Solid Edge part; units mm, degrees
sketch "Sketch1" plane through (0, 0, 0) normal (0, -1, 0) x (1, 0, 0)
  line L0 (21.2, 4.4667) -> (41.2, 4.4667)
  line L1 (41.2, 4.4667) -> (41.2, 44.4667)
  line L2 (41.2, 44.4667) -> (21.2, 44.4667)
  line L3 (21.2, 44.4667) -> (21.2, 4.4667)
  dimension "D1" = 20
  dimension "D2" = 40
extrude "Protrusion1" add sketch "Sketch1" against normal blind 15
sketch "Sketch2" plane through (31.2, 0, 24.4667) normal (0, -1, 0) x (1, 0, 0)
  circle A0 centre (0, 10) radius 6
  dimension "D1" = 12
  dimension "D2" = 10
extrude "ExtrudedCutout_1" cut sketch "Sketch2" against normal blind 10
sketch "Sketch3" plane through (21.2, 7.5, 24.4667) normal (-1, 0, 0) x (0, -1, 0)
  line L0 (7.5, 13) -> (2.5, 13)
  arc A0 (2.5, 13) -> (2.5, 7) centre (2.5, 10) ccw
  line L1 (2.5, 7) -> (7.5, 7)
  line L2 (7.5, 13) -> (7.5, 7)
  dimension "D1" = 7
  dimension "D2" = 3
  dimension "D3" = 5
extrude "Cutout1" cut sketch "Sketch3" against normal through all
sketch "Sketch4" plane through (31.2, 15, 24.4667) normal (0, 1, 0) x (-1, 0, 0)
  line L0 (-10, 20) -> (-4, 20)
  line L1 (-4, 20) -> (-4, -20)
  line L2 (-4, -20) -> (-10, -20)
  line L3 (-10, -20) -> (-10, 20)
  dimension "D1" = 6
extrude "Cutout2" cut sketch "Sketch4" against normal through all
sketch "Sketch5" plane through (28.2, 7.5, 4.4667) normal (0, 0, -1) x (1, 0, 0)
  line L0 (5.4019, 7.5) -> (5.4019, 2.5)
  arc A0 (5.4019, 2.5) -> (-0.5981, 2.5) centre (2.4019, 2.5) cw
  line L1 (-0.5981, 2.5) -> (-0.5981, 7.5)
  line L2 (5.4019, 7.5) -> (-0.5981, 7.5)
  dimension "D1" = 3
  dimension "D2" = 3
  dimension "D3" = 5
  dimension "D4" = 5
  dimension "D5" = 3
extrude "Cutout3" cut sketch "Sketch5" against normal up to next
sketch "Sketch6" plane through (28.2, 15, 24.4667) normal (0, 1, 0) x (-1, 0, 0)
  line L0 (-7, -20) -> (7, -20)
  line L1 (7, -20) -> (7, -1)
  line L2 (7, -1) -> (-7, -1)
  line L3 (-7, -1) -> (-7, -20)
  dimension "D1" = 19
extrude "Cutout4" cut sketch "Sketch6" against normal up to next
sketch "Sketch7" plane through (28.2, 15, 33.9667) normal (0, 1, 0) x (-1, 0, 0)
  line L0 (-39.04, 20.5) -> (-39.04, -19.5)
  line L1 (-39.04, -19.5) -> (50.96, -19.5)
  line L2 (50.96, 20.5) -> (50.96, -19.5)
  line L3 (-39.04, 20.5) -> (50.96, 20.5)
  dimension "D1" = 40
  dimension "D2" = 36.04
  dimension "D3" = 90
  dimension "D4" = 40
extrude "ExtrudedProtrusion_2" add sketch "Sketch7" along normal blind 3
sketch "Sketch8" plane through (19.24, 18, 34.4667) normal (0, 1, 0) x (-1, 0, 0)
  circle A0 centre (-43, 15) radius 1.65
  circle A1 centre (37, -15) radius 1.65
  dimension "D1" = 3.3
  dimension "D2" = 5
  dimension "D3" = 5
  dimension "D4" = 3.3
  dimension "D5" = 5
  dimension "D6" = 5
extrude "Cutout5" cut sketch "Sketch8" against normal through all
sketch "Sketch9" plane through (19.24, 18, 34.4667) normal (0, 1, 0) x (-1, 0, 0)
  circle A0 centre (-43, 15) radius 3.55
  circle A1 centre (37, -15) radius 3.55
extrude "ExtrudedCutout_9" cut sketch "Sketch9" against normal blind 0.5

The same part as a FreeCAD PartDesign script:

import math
import FreeCAD as App
import Part
import Sketcher
Q = App.Units.Quantity


def add_polygon(sketch, points):
    """Adds a closed chain of lines whose ends are joined by coincident constraints."""
    first, n = sketch.GeometryCount, len(points)
    for a, b in zip(points, points[1:] + points[:1]):
        sketch.addGeometry(Part.LineSegment(App.Vector(*a, 0), App.Vector(*b, 0)), False)
    for i in range(n):
        sketch.addConstraint(Sketcher.Constraint("Coincident", first + i, 2, first + (i + 1) % n, 1))

doc = App.newDocument("Part")
body = doc.addObject("PartDesign::Body", "Body")

# Sketch on XZ plane
sketch1 = doc.addObject("Sketcher::SketchObject", "Sketch")
body.addObject(sketch1)
sketch1.AttachmentSupport = (doc.XZ_Plane, [""])
sketch1.MapMode = "FlatFace"
add_polygon(sketch1, [(21, 44), (21, 4), (41, 4), (41, 44)])  # lines 0-3
sketch1.addConstraint([
    Sketcher.Constraint("Vertical", 0),
    Sketcher.Constraint("Horizontal", 1),
    Sketcher.Constraint("Vertical", 2),
    Sketcher.Constraint("Horizontal", 3),
    Sketcher.Constraint("DistanceX", -1, 1, 0, 2, Q("21.2 mm")),
    Sketcher.Constraint("DistanceX", -1, 1, 1, 2, Q("41.2 mm")),
    Sketcher.Constraint("DistanceY", 0, 2, 0, 1, Q("40 mm")),
    Sketcher.Constraint("DistanceY", -1, 1, 0, 2, Q("4.4667 mm")),
])
pad1 = doc.addObject("PartDesign::Pad", "Pad")
body.addObject(pad1)
pad1.Profile = sketch1
pad1.Length = 15
pad1.Reversed = True

# Sketch on XZ plane
sketch2 = doc.addObject("Sketcher::SketchObject", "Sketch001")
body.addObject(sketch2)
sketch2.AttachmentSupport = (doc.XZ_Plane, [""])
sketch2.MapMode = "FlatFace"
sketch2.addGeometry(Part.Circle(App.Vector(31, 34, 0), App.Vector(0, 0, 1), 6), False)
sketch2.addConstraint([
    Sketcher.Constraint("Diameter", 0, Q("12 mm")),
    Sketcher.Constraint("DistanceX", -1, 1, 0, 3, Q("31.2 mm")),
    Sketcher.Constraint("DistanceY", -1, 1, 0, 3, Q("34.4667 mm")),
])
pocket1 = doc.addObject("PartDesign::Pocket", "Pocket")
body.addObject(pocket1)
pocket1.Profile = sketch2
pocket1.Length = 10

# Sketch on YZ plane
sketch3 = doc.addObject("Sketcher::SketchObject", "Sketch002")
body.addObject(sketch3)
sketch3.AttachmentSupport = (doc.YZ_Plane, [""])
sketch3.MapMode = "FlatFace"
sketch3.AttachmentOffset = App.Placement(App.Vector(0, 0, 21.2), App.Rotation())
sketch3.addGeometry([
    Part.LineSegment(App.Vector(0, 31.5, 0), App.Vector(0, 37.5, 0)),
    Part.LineSegment(App.Vector(0, 37.5, 0), App.Vector(5, 37.5, 0)),
    Part.ArcOfCircle(Part.Circle(App.Vector(5, 34.5, 0), App.Vector(0, 0, 1), 3), math.radians(-90), math.radians(90)),
    Part.LineSegment(App.Vector(5, 31.5, 0), App.Vector(0, 31.5, 0)),
], False)
sketch3.addConstraint([
    Sketcher.Constraint("Coincident", 0, 2, 1, 1),
    Sketcher.Constraint("Tangent", 1, 2, 2, 2),
    Sketcher.Constraint("Tangent", 2, 1, 3, 1),
    Sketcher.Constraint("Coincident", 3, 2, 0, 1),
    Sketcher.Constraint("Vertical", 0),
    Sketcher.Constraint("Horizontal", 1),
    Sketcher.Constraint("Horizontal", 3),
    Sketcher.Constraint("PointOnObject", 0, 2, -2),
    Sketcher.Constraint("Radius", 2, Q("3 mm")),
    Sketcher.Constraint("DistanceX", 1, 1, 1, 2, Q("5 mm")),
    Sketcher.Constraint("DistanceY", -1, 1, 2, 3, Q("34.4667 mm")),
])
pocket2 = doc.addObject("PartDesign::Pocket", "Pocket001")
body.addObject(pocket2)
pocket2.Profile = sketch3
pocket2.Type = "ThroughAll"
pocket2.Reversed = True

# Sketch on XZ plane
sketch4 = doc.addObject("Sketcher::SketchObject", "Sketch003")
body.addObject(sketch4)
sketch4.AttachmentSupport = (doc.XZ_Plane, [""])
sketch4.MapMode = "FlatFace"
sketch4.AttachmentOffset = App.Placement(App.Vector(0, 0, -15), App.Rotation())
add_polygon(sketch4, [(35, 44), (41, 44), (41, 4), (35, 4)])  # lines 0-3
sketch4.addConstraint([
    Sketcher.Constraint("Horizontal", 0),
    Sketcher.Constraint("Vertical", 1),
    Sketcher.Constraint("Horizontal", 2),
    Sketcher.Constraint("Vertical", 3),
    Sketcher.Constraint("DistanceX", 0, 1, 0, 2, Q("6 mm")),
    Sketcher.Constraint("DistanceY", 1, 2, 1, 1, Q("40 mm")),
    Sketcher.Constraint("DistanceX", -1, 1, 0, 2, Q("41.2 mm")),
    Sketcher.Constraint("DistanceY", -1, 1, 0, 2, Q("44.4667 mm")),
])
pocket3 = doc.addObject("PartDesign::Pocket", "Pocket002")
body.addObject(pocket3)
pocket3.Profile = sketch4
pocket3.Type = "ThroughAll"
pocket3.Reversed = True

# Sketch on XY plane
sketch5 = doc.addObject("Sketcher::SketchObject", "Sketch004")
body.addObject(sketch5)
sketch5.AttachmentSupport = (doc.XY_Plane, [""])
sketch5.MapMode = "FlatFace"
sketch5.AttachmentOffset = App.Placement(App.Vector(0, 0, 4.4667), App.Rotation())
sketch5.addGeometry([
    Part.LineSegment(App.Vector(33.6, 5, 0), App.Vector(33.6, 0, 0)),
    Part.LineSegment(App.Vector(33.6, 0, 0), App.Vector(27.6, 0, 0)),
    Part.LineSegment(App.Vector(27.6, 0, 0), App.Vector(27.6, 5, 0)),
    Part.ArcOfCircle(Part.Circle(App.Vector(30.6, 5, 0), App.Vector(0, 0, 1), 3), math.radians(0), math.radians(180)),
], False)
sketch5.addConstraint([
    Sketcher.Constraint("Coincident", 0, 2, 1, 1),
    Sketcher.Constraint("Coincident", 1, 2, 2, 1),
    Sketcher.Constraint("Tangent", 2, 2, 3, 2),
    Sketcher.Constraint("Tangent", 3, 1, 0, 1),
    Sketcher.Constraint("Vertical", 0),
    Sketcher.Constraint("Horizontal", 1),
    Sketcher.Constraint("Vertical", 2),
    Sketcher.Constraint("PointOnObject", 0, 2, -1),
    Sketcher.Constraint("Radius", 3, Q("3 mm")),
    Sketcher.Constraint("DistanceY", 0, 2, 0, 1, Q("5 mm")),
    Sketcher.Constraint("DistanceX", -1, 1, 3, 3, Q("30.602 mm")),
])
pocket4 = doc.addObject("PartDesign::Pocket", "Pocket003")
body.addObject(pocket4)
pocket4.Profile = sketch5
pocket4.Type = "UpToFirst"
pocket4.Reversed = True

# Sketch on XZ plane
sketch6 = doc.addObject("Sketcher::SketchObject", "Sketch005")
body.addObject(sketch6)
sketch6.AttachmentSupport = (doc.XZ_Plane, [""])
sketch6.MapMode = "FlatFace"
sketch6.AttachmentOffset = App.Placement(App.Vector(0, 0, -15), App.Rotation())
add_polygon(sketch6, [(35, 23), (35, 4), (21, 4), (21, 23)])  # lines 0-3
sketch6.addConstraint([
    Sketcher.Constraint("Vertical", 0),
    Sketcher.Constraint("Horizontal", 1),
    Sketcher.Constraint("Vertical", 2),
    Sketcher.Constraint("Horizontal", 3),
    Sketcher.Constraint("DistanceX", 1, 2, 1, 1, Q("14 mm")),
    Sketcher.Constraint("DistanceY", 0, 2, 0, 1, Q("19 mm")),
    Sketcher.Constraint("DistanceX", -1, 1, 0, 2, Q("35.2 mm")),
    Sketcher.Constraint("DistanceY", -1, 1, 0, 2, Q("4.4667 mm")),
])
pocket5 = doc.addObject("PartDesign::Pocket", "Pocket004")
body.addObject(pocket5)
pocket5.Profile = sketch6
pocket5.Type = "UpToFirst"
pocket5.Reversed = True

# Sketch on XZ plane
sketch7 = doc.addObject("Sketcher::SketchObject", "Sketch006")
body.addObject(sketch7)
sketch7.AttachmentSupport = (doc.XZ_Plane, [""])
sketch7.MapMode = "FlatFace"
sketch7.AttachmentOffset = App.Placement(App.Vector(0, 0, -15), App.Rotation())
add_polygon(sketch7, [(-23, 54), (67, 54), (67, 14), (-23, 14)])  # lines 0-3
sketch7.addConstraint([
    Sketcher.Constraint("Horizontal", 0),
    Sketcher.Constraint("Vertical", 1),
    Sketcher.Constraint("Horizontal", 2),
    Sketcher.Constraint("Vertical", 3),
    Sketcher.Constraint("DistanceX", 0, 1, 0, 2, Q("90 mm")),
    Sketcher.Constraint("DistanceY", 1, 2, 1, 1, Q("40 mm")),
    Sketcher.Constraint("DistanceX", -1, 1, 0, 2, Q("67.24 mm")),
    Sketcher.Constraint("DistanceY", -1, 1, 0, 2, Q("54.4667 mm")),
])
pad2 = doc.addObject("PartDesign::Pad", "Pad001")
body.addObject(pad2)
pad2.Profile = sketch7
pad2.Length = 3
pad2.Reversed = True

# Sketch on XZ plane
sketch8 = doc.addObject("Sketcher::SketchObject", "Sketch007")
body.addObject(sketch8)
sketch8.AttachmentSupport = (doc.XZ_Plane, [""])
sketch8.MapMode = "FlatFace"
sketch8.AttachmentOffset = App.Placement(App.Vector(0, 0, -18), App.Rotation())
sketch8.addGeometry([
    Part.Circle(App.Vector(62.2, 49.5, 0), App.Vector(0, 0, 1), 1.6),
    Part.Circle(App.Vector(-17.8, 19.5, 0), App.Vector(0, 0, 1), 1.6),
], False)
sketch8.addConstraint([
    Sketcher.Constraint("Equal", 0, 1),
    Sketcher.Constraint("Diameter", 0, Q("3.3 mm")),
    Sketcher.Constraint("DistanceX", 1, 3, 0, 3, Q("80 mm")),
    Sketcher.Constraint("DistanceY", 1, 3, 0, 3, Q("30 mm")),
    Sketcher.Constraint("DistanceX", -1, 1, 0, 3, Q("62.24 mm")),
    Sketcher.Constraint("DistanceY", -1, 1, 0, 3, Q("49.4667 mm")),
])
pocket6 = doc.addObject("PartDesign::Pocket", "Pocket005")
body.addObject(pocket6)
pocket6.Profile = sketch8
pocket6.Type = "ThroughAll"
pocket6.Reversed = True

# Sketch on XZ plane
sketch9 = doc.addObject("Sketcher::SketchObject", "Sketch008")
body.addObject(sketch9)
sketch9.AttachmentSupport = (doc.XZ_Plane, [""])
sketch9.MapMode = "FlatFace"
sketch9.AttachmentOffset = App.Placement(App.Vector(0, 0, -18), App.Rotation())
sketch9.addGeometry([
    Part.Circle(App.Vector(62.2, 49.5, 0), App.Vector(0, 0, 1), 3.5),
    Part.Circle(App.Vector(-17.8, 19.5, 0), App.Vector(0, 0, 1), 3.5),
], False)
sketch9.addConstraint([
    Sketcher.Constraint("Equal", 0, 1),
    Sketcher.Constraint("Diameter", 0, Q("7.1 mm")),
    Sketcher.Constraint("DistanceX", 1, 3, 0, 3, Q("80 mm")),
    Sketcher.Constraint("DistanceY", 1, 3, 0, 3, Q("30 mm")),
    Sketcher.Constraint("DistanceX", -1, 1, 0, 3, Q("62.24 mm")),
    Sketcher.Constraint("DistanceY", -1, 1, 0, 3, Q("49.4667 mm")),
])
pocket7 = doc.addObject("PartDesign::Pocket", "Pocket006")
body.addObject(pocket7)
pocket7.Profile = sketch9
pocket7.Length = 0.5
pocket7.Reversed = True

doc.recompute()
